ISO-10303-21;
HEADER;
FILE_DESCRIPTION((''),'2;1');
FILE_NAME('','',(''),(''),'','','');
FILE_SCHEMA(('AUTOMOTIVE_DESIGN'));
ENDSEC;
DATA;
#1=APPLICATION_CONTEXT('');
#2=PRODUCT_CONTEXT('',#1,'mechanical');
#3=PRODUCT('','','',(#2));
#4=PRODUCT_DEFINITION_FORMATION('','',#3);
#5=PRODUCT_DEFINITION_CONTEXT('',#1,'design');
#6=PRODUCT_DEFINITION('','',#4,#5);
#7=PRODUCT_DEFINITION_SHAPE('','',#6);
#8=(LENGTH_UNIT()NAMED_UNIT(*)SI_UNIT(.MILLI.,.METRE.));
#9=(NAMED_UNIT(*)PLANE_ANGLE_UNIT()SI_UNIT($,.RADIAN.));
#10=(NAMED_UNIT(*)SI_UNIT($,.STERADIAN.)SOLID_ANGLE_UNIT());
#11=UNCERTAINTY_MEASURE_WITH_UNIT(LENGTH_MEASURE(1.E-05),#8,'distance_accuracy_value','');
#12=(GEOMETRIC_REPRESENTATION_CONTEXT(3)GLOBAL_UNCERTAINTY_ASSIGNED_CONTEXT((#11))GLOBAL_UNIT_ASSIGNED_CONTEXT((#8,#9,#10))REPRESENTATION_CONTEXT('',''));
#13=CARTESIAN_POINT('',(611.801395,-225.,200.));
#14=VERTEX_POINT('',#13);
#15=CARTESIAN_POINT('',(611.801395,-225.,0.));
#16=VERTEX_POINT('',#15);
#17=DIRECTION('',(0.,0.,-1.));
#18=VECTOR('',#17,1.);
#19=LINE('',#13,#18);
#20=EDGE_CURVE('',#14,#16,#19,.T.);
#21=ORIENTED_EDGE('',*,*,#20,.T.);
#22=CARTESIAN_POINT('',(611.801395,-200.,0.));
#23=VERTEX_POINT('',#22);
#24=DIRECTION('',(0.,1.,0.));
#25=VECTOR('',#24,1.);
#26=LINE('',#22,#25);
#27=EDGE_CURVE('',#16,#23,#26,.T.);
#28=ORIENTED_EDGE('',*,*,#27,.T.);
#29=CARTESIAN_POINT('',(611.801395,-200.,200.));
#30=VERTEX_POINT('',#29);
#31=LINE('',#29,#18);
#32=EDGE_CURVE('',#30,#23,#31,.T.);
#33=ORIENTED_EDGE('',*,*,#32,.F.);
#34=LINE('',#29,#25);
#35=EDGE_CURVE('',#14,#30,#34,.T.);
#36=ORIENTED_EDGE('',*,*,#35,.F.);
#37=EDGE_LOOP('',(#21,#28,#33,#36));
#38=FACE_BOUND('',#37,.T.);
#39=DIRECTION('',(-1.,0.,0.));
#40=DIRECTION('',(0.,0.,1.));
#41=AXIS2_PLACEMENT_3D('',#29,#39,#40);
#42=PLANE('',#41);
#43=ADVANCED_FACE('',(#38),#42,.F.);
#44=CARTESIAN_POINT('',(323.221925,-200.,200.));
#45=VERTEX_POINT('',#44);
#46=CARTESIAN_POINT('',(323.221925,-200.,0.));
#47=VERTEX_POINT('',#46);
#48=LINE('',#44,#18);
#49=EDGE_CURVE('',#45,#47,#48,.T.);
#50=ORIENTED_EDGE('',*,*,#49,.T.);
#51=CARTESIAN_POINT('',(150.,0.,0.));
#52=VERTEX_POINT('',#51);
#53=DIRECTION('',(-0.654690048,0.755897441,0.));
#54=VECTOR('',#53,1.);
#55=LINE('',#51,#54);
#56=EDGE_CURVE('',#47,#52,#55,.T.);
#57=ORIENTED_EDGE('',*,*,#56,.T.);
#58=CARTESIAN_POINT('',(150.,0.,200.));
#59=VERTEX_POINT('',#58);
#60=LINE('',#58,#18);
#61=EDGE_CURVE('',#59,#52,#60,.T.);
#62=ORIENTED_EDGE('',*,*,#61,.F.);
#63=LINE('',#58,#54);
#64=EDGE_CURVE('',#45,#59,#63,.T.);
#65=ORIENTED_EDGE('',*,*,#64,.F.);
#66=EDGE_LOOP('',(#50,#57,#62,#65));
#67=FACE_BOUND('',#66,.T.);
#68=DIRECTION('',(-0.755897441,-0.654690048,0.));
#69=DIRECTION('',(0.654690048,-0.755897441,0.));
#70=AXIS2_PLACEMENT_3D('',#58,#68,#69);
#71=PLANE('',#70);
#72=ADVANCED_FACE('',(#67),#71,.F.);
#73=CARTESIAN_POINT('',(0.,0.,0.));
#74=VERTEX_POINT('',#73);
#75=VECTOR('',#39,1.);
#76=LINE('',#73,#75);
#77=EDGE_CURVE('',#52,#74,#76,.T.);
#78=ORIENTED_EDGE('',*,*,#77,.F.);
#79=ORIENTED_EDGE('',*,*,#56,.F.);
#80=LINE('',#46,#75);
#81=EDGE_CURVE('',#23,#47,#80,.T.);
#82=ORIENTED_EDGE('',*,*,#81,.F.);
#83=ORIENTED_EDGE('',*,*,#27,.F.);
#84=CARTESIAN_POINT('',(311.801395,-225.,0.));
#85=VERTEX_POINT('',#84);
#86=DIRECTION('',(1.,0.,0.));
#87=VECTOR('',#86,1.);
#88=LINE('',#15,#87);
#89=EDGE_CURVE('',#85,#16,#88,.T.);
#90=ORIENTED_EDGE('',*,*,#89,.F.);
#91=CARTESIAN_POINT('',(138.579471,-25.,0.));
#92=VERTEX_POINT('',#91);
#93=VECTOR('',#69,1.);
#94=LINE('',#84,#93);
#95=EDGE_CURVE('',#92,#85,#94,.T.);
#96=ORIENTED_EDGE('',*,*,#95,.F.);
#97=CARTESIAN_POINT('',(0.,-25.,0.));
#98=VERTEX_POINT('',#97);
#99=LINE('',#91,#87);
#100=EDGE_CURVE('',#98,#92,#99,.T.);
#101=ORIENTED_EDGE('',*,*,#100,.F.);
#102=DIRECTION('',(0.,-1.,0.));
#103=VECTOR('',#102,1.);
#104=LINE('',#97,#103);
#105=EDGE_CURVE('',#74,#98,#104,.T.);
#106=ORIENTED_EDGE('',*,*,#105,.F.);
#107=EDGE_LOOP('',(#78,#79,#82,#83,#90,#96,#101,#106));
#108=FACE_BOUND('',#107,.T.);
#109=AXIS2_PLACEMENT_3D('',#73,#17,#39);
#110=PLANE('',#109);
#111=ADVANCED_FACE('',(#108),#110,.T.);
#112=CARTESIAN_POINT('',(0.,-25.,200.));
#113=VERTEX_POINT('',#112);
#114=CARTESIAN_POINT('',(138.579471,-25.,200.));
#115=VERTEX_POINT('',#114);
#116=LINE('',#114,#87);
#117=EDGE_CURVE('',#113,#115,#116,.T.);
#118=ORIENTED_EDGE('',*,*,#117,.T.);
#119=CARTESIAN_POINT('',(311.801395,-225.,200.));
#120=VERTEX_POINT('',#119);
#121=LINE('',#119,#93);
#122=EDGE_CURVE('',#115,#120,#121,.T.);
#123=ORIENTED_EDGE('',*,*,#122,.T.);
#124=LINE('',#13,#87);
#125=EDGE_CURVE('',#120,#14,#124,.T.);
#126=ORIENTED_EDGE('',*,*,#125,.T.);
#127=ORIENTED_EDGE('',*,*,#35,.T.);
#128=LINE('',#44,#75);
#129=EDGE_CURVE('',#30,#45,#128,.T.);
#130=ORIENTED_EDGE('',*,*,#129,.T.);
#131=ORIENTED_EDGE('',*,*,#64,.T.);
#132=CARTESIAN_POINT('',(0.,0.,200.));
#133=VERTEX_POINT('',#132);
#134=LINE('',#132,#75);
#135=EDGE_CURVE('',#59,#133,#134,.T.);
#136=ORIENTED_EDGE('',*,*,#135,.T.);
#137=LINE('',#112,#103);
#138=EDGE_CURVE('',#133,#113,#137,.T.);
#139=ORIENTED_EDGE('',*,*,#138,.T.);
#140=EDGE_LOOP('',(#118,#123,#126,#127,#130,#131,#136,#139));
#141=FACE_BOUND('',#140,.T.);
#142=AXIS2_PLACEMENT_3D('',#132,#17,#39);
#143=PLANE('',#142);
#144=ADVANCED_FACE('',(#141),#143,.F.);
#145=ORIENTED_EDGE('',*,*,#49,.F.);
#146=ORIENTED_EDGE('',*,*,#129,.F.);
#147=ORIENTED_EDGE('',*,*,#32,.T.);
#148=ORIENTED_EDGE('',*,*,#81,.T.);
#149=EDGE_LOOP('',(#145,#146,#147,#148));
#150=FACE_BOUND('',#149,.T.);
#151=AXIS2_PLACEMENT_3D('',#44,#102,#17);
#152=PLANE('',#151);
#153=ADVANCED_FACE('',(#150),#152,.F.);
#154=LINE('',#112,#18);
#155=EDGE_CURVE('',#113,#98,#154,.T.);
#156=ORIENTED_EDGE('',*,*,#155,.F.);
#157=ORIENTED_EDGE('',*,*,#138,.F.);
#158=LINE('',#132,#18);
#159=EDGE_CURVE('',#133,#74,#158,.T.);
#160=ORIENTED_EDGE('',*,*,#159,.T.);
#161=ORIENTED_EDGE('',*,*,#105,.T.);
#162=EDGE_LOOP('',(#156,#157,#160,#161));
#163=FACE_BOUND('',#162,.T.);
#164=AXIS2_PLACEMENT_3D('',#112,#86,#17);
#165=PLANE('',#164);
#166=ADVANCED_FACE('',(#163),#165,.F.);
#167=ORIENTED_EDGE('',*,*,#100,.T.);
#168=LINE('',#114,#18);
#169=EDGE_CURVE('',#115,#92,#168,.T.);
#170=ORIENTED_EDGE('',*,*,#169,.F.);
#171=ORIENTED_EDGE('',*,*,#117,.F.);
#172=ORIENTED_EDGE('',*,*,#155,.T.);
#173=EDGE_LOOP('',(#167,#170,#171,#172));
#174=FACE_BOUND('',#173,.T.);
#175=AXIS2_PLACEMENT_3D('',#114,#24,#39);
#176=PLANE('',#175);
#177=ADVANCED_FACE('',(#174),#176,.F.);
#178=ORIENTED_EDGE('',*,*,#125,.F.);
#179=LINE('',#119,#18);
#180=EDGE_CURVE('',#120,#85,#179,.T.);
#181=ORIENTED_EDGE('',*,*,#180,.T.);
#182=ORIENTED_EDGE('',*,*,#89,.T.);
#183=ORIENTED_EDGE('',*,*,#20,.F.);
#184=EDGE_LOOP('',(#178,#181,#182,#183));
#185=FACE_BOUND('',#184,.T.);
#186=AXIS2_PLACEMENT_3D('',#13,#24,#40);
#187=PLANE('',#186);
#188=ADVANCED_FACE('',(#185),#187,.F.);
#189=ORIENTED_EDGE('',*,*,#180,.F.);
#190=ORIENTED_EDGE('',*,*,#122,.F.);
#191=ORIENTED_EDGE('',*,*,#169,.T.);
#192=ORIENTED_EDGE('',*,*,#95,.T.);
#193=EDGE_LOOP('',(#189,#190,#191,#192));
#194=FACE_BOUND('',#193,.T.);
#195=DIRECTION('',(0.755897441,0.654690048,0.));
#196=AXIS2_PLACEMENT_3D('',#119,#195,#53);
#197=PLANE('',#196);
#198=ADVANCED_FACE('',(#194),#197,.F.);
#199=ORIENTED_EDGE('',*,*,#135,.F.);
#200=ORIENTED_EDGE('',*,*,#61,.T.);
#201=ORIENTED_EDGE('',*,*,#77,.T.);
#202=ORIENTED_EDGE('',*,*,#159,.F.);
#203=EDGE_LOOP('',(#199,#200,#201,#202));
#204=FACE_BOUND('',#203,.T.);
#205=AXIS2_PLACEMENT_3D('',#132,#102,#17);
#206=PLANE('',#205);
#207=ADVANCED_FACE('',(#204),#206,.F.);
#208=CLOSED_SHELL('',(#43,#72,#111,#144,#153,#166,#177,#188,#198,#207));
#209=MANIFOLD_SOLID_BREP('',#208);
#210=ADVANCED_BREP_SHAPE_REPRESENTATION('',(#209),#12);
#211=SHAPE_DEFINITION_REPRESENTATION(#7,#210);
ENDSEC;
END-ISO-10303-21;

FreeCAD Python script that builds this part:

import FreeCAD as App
import Part
import Sketcher

V = App.Vector

doc = App.newDocument("Part")
params = doc.addObject("Spreadsheet::Sheet", "Params")
for row, (alias, value) in enumerate([
    ("sketch1_width", "150 mm"),
    ("sketch1_width2", "300 mm"),
    ("sketch1_height", "25 mm"),
    ("pad1_length", "200 mm"),
], start=1):
    params.set(f"A{row}", alias)
    params.set(f"B{row}", "=" + value)
    params.setAlias(f"B{row}", alias)

body = doc.addObject("PartDesign::Body", "Body")

# Sketch on XY plane
sketch1 = body.newObject("Sketcher::SketchObject", "Sketch")
sketch1.AttachmentSupport = (doc.getObject("XY_Plane"), [""])
sketch1.MapMode = "FlatFace"
sketch1.addGeometry([
    Part.LineSegment(V(150, 0, 0), V(0, 0, 0)),  # 0
    Part.LineSegment(V(0, 0, 0), V(0, -25, 0)),  # 1
    Part.LineSegment(V(0, -25, 0), V(139, -25, 0)),  # 2
    Part.LineSegment(V(139, -25, 0), V(312, -225, 0)),  # 3
    Part.LineSegment(V(312, -225, 0), V(612, -225, 0)),  # 4
    Part.LineSegment(V(612, -225, 0), V(612, -200, 0)),  # 5
    Part.LineSegment(V(612, -200, 0), V(323, -200, 0)),  # 6
    Part.LineSegment(V(323, -200, 0), V(150, 0, 0)),  # 7
], False)
sketch1.addConstraint([
    Sketcher.Constraint("Coincident", 0, 2, 1, 1),
    Sketcher.Constraint("Coincident", 1, 2, 2, 1),
    Sketcher.Constraint("Coincident", 2, 2, 3, 1),
    Sketcher.Constraint("Coincident", 3, 2, 4, 1),
    Sketcher.Constraint("Coincident", 4, 2, 5, 1),
    Sketcher.Constraint("Coincident", 5, 2, 6, 1),
    Sketcher.Constraint("Coincident", 6, 2, 7, 1),
    Sketcher.Constraint("Coincident", 7, 2, 0, 1),
    Sketcher.Constraint("Horizontal", 0),
    Sketcher.Constraint("Vertical", 1),
    Sketcher.Constraint("Horizontal", 2),
    Sketcher.Constraint("Horizontal", 4),
    Sketcher.Constraint("Vertical", 5),
    Sketcher.Constraint("Horizontal", 6),
    Sketcher.Constraint("Coincident", 0, 2, -1, 1),
    Sketcher.Constraint("Parallel", 3, 7),
    Sketcher.Constraint("Equal", 1, 5),
    Sketcher.Constraint("DistanceX", 0, 2, 0, 1, 150.0),
    Sketcher.Constraint("DistanceX", 4, 1, 4, 2, 300.0),
    Sketcher.Constraint("DistanceY", 1, 2, 1, 1, 25.0),
    Sketcher.Constraint("DistanceY", 3, 2, -1, 1, 225.0),
    Sketcher.Constraint("DistanceX", 2, 1, 2, 2, 138.579471),
    Sketcher.Constraint("Distance", 3, 264.586158),
])
sketch1.setExpression("Constraints[17]", "Params.sketch1_width")
sketch1.setExpression("Constraints[18]", "Params.sketch1_width2")
sketch1.setExpression("Constraints[19]", "Params.sketch1_height")
pad1 = body.newObject("PartDesign::Pad", "Pad")
pad1.Profile = sketch1
pad1.setExpression("Length", "Params.pad1_length")

doc.recompute()
